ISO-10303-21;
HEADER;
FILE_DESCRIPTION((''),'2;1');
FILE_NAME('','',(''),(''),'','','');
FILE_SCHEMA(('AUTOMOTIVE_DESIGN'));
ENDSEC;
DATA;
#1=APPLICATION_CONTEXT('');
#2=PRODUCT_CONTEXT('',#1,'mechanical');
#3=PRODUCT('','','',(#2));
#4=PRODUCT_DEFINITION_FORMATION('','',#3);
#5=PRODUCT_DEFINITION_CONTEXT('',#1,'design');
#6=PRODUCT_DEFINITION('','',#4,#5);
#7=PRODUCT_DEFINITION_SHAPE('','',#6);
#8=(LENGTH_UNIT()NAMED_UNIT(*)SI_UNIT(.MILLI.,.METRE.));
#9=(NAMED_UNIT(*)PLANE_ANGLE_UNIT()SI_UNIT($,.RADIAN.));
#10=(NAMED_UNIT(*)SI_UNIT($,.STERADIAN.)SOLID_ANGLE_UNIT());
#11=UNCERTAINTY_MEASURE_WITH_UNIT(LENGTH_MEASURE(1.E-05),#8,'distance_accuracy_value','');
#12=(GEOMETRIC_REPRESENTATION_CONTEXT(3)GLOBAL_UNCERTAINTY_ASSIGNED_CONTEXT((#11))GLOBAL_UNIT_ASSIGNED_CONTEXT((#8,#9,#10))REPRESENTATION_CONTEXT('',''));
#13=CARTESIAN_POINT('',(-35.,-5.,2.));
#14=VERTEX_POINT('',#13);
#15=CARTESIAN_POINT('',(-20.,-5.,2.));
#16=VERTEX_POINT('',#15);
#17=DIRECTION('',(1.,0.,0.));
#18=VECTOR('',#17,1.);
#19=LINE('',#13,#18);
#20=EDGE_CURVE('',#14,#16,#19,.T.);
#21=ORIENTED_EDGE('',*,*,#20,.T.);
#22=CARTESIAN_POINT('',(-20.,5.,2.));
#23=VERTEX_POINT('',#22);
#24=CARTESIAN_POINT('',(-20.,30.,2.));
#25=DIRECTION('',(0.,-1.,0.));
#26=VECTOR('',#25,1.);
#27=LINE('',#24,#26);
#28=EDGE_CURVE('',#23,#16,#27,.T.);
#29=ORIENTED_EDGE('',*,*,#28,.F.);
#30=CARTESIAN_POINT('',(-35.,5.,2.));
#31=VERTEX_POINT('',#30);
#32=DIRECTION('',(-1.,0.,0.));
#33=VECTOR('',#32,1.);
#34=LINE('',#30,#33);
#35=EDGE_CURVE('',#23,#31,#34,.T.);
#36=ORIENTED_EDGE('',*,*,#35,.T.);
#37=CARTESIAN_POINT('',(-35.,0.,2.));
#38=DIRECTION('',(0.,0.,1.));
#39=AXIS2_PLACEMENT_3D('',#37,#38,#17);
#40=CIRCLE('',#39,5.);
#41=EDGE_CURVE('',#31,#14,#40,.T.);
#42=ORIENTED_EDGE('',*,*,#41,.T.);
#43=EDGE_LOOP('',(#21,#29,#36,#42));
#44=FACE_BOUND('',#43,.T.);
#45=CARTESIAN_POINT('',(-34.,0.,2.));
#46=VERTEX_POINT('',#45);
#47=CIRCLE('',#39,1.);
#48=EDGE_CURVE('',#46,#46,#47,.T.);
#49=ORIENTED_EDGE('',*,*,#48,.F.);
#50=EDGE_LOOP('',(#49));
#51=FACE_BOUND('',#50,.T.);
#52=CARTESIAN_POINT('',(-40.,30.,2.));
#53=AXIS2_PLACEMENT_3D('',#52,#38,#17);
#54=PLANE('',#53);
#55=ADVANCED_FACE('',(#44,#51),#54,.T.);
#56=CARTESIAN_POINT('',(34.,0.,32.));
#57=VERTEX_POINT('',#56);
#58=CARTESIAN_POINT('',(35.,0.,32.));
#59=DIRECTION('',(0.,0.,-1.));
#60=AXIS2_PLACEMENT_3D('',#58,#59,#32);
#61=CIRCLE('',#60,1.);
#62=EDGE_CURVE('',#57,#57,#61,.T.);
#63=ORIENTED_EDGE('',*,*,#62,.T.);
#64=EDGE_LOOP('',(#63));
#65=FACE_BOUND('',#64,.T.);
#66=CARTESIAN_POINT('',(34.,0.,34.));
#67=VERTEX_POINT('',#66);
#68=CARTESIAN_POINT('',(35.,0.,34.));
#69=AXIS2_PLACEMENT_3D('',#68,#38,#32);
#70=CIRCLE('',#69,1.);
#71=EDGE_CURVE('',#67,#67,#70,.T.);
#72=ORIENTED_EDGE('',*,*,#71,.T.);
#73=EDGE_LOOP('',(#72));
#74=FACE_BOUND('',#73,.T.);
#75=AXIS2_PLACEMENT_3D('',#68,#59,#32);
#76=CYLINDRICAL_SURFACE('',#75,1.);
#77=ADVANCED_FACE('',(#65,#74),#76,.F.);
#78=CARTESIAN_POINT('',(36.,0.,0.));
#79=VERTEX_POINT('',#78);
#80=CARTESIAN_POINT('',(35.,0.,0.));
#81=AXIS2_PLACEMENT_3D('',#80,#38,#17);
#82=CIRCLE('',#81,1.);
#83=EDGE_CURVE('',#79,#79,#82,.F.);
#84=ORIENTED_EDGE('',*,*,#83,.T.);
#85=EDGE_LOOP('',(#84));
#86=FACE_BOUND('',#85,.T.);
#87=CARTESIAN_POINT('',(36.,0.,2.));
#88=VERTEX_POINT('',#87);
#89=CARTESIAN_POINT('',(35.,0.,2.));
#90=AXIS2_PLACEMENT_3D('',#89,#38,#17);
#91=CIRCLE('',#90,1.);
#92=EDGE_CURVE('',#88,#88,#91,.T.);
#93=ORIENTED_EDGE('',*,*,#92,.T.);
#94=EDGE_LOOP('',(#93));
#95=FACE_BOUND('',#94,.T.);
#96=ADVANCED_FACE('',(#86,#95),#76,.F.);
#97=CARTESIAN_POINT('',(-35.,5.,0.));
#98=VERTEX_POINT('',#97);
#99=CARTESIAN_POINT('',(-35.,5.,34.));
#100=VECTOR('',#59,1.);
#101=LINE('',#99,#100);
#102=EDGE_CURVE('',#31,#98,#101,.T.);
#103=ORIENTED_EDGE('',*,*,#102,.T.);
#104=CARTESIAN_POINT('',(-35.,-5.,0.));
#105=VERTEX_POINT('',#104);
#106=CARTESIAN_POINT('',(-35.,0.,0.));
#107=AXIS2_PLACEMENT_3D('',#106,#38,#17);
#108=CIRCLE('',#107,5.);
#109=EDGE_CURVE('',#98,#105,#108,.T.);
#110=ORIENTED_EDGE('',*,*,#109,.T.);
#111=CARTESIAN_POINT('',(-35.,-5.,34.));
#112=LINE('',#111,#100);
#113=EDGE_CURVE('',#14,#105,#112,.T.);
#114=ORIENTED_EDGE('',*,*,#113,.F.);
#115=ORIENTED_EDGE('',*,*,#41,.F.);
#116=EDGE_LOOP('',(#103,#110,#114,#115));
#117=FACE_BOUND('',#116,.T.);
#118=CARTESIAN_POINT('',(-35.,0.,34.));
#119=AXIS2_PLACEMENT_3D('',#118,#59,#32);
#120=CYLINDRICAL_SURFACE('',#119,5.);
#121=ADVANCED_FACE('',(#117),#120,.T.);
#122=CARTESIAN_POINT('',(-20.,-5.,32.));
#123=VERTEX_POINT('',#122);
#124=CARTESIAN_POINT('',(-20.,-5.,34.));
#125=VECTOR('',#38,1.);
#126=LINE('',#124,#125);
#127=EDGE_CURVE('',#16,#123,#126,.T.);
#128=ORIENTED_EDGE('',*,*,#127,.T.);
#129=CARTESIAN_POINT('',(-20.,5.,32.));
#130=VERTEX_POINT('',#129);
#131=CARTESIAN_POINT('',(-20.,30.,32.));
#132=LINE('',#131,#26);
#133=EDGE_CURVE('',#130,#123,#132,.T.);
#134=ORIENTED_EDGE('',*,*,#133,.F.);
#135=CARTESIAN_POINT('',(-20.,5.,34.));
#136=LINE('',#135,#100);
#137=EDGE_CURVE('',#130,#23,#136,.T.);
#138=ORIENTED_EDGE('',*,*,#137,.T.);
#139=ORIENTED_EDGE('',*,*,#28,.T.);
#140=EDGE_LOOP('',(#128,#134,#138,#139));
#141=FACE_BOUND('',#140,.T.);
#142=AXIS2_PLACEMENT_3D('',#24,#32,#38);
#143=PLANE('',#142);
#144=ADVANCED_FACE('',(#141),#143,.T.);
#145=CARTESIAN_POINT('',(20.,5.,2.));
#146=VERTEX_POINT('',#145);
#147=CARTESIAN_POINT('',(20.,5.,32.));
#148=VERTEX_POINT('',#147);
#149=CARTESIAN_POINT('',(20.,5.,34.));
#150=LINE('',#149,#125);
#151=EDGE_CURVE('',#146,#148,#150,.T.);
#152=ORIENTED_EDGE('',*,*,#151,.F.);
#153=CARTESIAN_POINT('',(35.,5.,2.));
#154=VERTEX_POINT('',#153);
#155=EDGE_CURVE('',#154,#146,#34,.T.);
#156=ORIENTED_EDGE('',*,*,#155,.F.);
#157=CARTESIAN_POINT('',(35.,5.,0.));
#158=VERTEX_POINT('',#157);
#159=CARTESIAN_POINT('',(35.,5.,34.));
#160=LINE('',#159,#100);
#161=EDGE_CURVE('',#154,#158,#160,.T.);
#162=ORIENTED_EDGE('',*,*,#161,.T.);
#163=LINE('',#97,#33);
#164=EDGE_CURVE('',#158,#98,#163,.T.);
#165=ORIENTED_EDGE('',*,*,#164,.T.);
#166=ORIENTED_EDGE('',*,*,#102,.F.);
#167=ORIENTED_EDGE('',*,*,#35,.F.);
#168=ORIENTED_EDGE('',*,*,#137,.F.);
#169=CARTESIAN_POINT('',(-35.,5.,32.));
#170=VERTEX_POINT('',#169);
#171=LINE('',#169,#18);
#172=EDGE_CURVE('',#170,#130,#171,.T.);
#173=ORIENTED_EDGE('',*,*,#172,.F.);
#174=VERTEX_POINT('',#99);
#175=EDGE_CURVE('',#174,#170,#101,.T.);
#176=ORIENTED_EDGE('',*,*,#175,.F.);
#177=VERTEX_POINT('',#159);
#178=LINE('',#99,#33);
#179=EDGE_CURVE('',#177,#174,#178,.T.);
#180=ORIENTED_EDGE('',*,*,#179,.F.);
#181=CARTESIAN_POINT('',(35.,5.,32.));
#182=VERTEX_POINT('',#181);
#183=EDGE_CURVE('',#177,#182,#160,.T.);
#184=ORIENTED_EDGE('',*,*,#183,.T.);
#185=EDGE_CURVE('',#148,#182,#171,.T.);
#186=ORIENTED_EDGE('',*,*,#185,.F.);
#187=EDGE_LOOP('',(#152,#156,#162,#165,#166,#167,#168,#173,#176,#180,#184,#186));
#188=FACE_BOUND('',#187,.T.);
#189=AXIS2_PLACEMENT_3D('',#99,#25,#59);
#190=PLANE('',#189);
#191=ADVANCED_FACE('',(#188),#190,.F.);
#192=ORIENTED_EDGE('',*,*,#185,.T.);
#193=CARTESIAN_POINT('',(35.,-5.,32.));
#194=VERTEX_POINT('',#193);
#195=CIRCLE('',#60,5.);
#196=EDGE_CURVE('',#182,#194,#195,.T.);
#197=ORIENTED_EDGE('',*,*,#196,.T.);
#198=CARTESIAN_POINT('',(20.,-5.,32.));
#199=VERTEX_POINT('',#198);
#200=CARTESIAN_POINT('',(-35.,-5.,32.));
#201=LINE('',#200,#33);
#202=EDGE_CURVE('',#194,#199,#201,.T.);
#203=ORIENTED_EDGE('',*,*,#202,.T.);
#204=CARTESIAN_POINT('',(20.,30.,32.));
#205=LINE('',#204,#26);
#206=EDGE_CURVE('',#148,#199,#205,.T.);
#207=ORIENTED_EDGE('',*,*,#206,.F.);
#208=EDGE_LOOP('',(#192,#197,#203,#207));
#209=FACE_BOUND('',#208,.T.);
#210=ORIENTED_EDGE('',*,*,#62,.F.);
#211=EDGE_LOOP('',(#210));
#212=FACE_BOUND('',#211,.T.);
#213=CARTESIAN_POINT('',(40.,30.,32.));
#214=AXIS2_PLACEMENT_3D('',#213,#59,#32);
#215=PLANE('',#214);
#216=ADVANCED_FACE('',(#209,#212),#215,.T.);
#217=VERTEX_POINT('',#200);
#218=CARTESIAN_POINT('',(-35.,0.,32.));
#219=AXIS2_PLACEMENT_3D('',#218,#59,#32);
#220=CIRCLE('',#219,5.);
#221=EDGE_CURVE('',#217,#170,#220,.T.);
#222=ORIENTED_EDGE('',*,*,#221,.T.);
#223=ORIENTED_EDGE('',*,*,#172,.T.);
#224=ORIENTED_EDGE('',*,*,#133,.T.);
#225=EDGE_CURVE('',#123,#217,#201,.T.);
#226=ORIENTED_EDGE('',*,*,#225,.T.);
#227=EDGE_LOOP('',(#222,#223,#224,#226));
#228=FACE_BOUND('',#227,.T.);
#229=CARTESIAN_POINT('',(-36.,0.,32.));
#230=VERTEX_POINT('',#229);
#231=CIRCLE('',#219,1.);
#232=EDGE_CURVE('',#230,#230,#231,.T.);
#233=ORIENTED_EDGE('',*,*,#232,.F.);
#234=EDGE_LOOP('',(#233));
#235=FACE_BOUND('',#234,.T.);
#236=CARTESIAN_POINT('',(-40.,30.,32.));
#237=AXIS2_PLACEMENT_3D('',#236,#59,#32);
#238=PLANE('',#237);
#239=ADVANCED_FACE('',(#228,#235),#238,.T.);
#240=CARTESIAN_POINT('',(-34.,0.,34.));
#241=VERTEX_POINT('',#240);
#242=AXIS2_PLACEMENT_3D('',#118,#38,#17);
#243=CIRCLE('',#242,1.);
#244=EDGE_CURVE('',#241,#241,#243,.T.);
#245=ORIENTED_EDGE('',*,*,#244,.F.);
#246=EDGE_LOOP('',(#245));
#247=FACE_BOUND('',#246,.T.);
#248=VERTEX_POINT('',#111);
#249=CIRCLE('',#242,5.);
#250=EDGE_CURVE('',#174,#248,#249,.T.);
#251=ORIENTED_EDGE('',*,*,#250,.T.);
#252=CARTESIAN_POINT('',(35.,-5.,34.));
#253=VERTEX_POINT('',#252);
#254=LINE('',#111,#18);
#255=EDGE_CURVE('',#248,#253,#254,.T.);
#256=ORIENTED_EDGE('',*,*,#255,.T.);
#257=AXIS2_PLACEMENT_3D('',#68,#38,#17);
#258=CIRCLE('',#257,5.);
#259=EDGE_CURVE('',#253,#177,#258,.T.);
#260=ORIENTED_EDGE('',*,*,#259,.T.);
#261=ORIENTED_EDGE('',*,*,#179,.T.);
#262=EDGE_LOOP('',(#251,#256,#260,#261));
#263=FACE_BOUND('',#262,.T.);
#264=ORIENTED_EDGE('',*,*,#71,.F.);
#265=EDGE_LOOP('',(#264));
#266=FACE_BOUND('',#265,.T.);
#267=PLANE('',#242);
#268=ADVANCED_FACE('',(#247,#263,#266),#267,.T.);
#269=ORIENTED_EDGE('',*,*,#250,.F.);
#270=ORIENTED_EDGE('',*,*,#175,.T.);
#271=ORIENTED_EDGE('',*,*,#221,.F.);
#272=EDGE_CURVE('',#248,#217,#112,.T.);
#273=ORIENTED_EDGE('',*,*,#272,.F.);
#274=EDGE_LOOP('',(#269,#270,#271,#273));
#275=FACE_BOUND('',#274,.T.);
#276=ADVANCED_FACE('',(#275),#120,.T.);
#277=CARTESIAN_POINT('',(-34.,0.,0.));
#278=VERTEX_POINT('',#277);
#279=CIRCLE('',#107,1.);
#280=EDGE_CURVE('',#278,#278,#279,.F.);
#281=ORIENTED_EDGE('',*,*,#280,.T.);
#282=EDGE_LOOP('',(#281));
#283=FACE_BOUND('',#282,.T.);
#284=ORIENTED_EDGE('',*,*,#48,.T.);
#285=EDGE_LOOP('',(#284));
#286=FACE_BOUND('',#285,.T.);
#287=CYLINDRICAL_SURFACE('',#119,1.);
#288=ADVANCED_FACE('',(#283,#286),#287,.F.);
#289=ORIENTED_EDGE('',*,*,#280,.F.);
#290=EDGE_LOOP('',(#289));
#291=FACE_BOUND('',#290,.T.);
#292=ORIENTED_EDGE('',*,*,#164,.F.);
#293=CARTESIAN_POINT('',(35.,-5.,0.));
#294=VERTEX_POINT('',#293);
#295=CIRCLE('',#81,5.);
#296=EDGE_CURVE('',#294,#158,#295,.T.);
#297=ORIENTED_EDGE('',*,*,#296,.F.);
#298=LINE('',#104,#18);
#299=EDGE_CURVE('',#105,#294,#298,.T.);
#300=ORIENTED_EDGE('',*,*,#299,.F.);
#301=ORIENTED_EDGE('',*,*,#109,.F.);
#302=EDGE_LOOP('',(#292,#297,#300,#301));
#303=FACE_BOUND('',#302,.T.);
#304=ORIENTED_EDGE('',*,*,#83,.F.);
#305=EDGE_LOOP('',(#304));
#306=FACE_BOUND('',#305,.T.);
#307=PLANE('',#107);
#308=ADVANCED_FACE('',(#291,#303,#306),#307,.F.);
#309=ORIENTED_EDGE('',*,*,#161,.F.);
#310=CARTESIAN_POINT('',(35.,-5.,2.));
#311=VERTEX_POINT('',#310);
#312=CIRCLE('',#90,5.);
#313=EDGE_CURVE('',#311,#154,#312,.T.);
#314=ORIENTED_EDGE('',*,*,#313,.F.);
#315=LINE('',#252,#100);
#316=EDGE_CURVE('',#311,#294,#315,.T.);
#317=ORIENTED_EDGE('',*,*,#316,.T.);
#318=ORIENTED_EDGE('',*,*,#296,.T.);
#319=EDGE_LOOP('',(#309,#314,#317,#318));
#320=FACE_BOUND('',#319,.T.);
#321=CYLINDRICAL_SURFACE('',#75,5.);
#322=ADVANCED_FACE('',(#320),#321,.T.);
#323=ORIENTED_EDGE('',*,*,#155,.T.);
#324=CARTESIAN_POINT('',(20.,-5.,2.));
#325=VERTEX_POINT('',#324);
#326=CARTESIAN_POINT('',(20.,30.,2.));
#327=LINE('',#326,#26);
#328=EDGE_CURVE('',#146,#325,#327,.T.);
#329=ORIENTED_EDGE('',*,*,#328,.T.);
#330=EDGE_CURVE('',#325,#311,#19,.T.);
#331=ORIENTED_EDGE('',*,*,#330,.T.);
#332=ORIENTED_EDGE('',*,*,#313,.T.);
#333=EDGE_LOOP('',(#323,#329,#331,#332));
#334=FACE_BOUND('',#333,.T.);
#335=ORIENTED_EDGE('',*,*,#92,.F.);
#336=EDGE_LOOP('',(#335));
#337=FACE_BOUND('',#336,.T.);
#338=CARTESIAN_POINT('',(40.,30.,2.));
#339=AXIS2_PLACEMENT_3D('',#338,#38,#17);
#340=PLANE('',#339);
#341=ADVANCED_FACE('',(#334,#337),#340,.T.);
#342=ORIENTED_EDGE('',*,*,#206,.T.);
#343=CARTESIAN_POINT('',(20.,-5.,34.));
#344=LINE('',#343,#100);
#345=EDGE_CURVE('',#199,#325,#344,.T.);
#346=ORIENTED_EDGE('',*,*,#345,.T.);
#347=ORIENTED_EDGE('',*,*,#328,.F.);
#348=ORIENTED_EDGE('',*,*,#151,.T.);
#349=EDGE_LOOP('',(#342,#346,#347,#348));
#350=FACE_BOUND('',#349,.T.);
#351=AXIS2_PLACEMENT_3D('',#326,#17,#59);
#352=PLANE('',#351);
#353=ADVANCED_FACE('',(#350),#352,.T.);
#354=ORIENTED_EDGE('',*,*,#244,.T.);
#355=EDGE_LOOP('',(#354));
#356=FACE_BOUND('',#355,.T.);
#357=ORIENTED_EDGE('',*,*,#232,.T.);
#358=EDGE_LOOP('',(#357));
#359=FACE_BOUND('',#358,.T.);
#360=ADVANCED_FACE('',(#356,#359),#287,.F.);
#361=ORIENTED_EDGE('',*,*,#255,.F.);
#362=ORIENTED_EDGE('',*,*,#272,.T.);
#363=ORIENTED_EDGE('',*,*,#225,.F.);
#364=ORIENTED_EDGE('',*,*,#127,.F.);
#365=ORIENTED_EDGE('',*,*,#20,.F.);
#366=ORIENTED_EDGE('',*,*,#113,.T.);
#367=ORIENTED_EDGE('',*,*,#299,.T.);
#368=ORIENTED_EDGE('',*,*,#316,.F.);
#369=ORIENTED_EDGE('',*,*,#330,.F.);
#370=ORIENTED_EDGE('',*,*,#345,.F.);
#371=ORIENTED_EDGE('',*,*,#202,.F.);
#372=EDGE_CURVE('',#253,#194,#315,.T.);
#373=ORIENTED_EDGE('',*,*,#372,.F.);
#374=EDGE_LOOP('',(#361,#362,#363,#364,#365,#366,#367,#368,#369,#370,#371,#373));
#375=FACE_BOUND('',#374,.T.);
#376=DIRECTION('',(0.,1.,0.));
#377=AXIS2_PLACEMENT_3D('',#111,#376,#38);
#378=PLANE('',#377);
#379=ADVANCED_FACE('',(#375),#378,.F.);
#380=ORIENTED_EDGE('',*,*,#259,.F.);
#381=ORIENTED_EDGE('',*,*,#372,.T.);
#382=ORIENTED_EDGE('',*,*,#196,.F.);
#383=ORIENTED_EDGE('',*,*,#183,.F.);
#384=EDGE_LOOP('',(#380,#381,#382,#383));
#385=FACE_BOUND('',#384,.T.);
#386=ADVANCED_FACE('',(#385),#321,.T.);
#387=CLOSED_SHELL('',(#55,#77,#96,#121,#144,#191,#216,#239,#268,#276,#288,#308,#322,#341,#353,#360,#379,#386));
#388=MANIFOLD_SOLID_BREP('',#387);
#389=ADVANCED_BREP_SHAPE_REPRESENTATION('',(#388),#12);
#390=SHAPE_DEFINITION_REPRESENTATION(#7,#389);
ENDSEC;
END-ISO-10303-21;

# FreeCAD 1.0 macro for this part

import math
import FreeCAD as App
import Part
import Sketcher

doc = App.newDocument("Part")
body = doc.addObject("PartDesign::Body", "Body")

sketch1 = doc.addObject("Sketcher::SketchObject", "Sketch")
body.addObject(sketch1)
sketch1.AttachmentSupport = (doc.XY_Plane, [""])
sketch1.MapMode = "FlatFace"
sketch1.addGeometry([
    Part.LineSegment(App.Vector(35, 5, 0), App.Vector(-35, 5, 0)),
    Part.ArcOfCircle(Part.Circle(App.Vector(-35, 0, 0), App.Vector(0, 0, 1), 5), math.radians(90), math.radians(270)),
    Part.LineSegment(App.Vector(-35, -5, 0), App.Vector(35, -5, 0)),
    Part.ArcOfCircle(Part.Circle(App.Vector(35, 0, 0), App.Vector(0, 0, 1), 5), math.radians(-90), math.radians(90)),
], False)
sketch1.addConstraint([
    Sketcher.Constraint("Tangent", 0, 2, 1, 1),
    Sketcher.Constraint("Tangent", 1, 2, 2, 1),
    Sketcher.Constraint("Tangent", 2, 2, 3, 1),
    Sketcher.Constraint("Tangent", 3, 2, 0, 1),
    Sketcher.Constraint("Horizontal", 0),
    Sketcher.Constraint("Horizontal", 2),
    Sketcher.Constraint("Symmetric", 1, 3, 3, 3, -1, 1),
    Sketcher.Constraint("Radius", 1, 5.0),
    Sketcher.Constraint("DistanceX", 0, 2, 0, 1, 70.0),
])
pad1 = doc.addObject("PartDesign::Pad", "Pad")
body.addObject(pad1)
pad1.Profile = sketch1
pad1.Length = 34

sketch2 = doc.addObject("Sketcher::SketchObject", "Sketch001")
body.addObject(sketch2)
sketch2.AttachmentSupport = (doc.XY_Plane, [""])
sketch2.MapMode = "FlatFace"
sketch2.addGeometry([
    Part.Circle(App.Vector(-35, 0, 0), App.Vector(0, 0, 1), 1),
    Part.Circle(App.Vector(35, 0, 0), App.Vector(0, 0, 1), 1),
], False)
sketch2.addConstraint([
    Sketcher.Constraint("Equal", 0, 1),
    Sketcher.Constraint("Symmetric", 0, 3, 1, 3, -1, 1),
    Sketcher.Constraint("PointOnObject", 0, 3, -1),
    Sketcher.Constraint("Diameter", 0, 2.0),
    Sketcher.Constraint("DistanceX", 0, 3, -1, 1, 35.0),
])
pocket1 = doc.addObject("PartDesign::Pocket", "Pocket")
body.addObject(pocket1)
pocket1.Profile = sketch2
pocket1.Type = "ThroughAll"
pocket1.Midplane = True

sketch3 = doc.addObject("Sketcher::SketchObject", "Sketch002")
body.addObject(sketch3)
sketch3.AttachmentSupport = (doc.XZ_Plane, [""])
sketch3.MapMode = "FlatFace"
sketch3.addGeometry([
    Part.LineSegment(App.Vector(-40, 2, 0), App.Vector(-40, 32, 0)),
    Part.LineSegment(App.Vector(-40, 32, 0), App.Vector(-20, 32, 0)),
    Part.LineSegment(App.Vector(-20, 32, 0), App.Vector(-20, 2, 0)),
    Part.LineSegment(App.Vector(-20, 2, 0), App.Vector(-40, 2, 0)),
    Part.LineSegment(App.Vector(20, 2, 0), App.Vector(20, 32, 0)),
    Part.LineSegment(App.Vector(20, 32, 0), App.Vector(40, 32, 0)),
    Part.LineSegment(App.Vector(40, 32, 0), App.Vector(40, 2, 0)),
    Part.LineSegment(App.Vector(40, 2, 0), App.Vector(20, 2, 0)),
], False)
sketch3.addConstraint([
    Sketcher.Constraint("Coincident", 0, 2, 1, 1),
    Sketcher.Constraint("Coincident", 1, 2, 2, 1),
    Sketcher.Constraint("Coincident", 2, 2, 3, 1),
    Sketcher.Constraint("Coincident", 3, 2, 0, 1),
    Sketcher.Constraint("Coincident", 4, 2, 5, 1),
    Sketcher.Constraint("Coincident", 5, 2, 6, 1),
    Sketcher.Constraint("Coincident", 6, 2, 7, 1),
    Sketcher.Constraint("Coincident", 7, 2, 4, 1),
    Sketcher.Constraint("Vertical", 0),
    Sketcher.Constraint("Horizontal", 1),
    Sketcher.Constraint("Vertical", 2),
    Sketcher.Constraint("Horizontal", 3),
    Sketcher.Constraint("Vertical", 4),
    Sketcher.Constraint("Horizontal", 5),
    Sketcher.Constraint("Vertical", 6),
    Sketcher.Constraint("Horizontal", 7),
    Sketcher.Constraint("Symmetric", 1, 2, 4, 2, -2),
    Sketcher.Constraint("Symmetric", 3, 2, 6, 2, -2),
    Sketcher.Constraint("DistanceX", 1, 1, 1, 2, 20.0),
    Sketcher.Constraint("DistanceY", 0, 1, 0, 2, 30.0),
    Sketcher.Constraint("DistanceX", 0, 2, -1, 1, 40.0),
    Sketcher.Constraint("DistanceY", -1, 1, 0, 2, 32.0),
])
pocket2 = doc.addObject("PartDesign::Pocket", "Pocket001")
body.addObject(pocket2)
pocket2.Profile = sketch3
pocket2.Type = "ThroughAll"
pocket2.Midplane = True

doc.recompute()
